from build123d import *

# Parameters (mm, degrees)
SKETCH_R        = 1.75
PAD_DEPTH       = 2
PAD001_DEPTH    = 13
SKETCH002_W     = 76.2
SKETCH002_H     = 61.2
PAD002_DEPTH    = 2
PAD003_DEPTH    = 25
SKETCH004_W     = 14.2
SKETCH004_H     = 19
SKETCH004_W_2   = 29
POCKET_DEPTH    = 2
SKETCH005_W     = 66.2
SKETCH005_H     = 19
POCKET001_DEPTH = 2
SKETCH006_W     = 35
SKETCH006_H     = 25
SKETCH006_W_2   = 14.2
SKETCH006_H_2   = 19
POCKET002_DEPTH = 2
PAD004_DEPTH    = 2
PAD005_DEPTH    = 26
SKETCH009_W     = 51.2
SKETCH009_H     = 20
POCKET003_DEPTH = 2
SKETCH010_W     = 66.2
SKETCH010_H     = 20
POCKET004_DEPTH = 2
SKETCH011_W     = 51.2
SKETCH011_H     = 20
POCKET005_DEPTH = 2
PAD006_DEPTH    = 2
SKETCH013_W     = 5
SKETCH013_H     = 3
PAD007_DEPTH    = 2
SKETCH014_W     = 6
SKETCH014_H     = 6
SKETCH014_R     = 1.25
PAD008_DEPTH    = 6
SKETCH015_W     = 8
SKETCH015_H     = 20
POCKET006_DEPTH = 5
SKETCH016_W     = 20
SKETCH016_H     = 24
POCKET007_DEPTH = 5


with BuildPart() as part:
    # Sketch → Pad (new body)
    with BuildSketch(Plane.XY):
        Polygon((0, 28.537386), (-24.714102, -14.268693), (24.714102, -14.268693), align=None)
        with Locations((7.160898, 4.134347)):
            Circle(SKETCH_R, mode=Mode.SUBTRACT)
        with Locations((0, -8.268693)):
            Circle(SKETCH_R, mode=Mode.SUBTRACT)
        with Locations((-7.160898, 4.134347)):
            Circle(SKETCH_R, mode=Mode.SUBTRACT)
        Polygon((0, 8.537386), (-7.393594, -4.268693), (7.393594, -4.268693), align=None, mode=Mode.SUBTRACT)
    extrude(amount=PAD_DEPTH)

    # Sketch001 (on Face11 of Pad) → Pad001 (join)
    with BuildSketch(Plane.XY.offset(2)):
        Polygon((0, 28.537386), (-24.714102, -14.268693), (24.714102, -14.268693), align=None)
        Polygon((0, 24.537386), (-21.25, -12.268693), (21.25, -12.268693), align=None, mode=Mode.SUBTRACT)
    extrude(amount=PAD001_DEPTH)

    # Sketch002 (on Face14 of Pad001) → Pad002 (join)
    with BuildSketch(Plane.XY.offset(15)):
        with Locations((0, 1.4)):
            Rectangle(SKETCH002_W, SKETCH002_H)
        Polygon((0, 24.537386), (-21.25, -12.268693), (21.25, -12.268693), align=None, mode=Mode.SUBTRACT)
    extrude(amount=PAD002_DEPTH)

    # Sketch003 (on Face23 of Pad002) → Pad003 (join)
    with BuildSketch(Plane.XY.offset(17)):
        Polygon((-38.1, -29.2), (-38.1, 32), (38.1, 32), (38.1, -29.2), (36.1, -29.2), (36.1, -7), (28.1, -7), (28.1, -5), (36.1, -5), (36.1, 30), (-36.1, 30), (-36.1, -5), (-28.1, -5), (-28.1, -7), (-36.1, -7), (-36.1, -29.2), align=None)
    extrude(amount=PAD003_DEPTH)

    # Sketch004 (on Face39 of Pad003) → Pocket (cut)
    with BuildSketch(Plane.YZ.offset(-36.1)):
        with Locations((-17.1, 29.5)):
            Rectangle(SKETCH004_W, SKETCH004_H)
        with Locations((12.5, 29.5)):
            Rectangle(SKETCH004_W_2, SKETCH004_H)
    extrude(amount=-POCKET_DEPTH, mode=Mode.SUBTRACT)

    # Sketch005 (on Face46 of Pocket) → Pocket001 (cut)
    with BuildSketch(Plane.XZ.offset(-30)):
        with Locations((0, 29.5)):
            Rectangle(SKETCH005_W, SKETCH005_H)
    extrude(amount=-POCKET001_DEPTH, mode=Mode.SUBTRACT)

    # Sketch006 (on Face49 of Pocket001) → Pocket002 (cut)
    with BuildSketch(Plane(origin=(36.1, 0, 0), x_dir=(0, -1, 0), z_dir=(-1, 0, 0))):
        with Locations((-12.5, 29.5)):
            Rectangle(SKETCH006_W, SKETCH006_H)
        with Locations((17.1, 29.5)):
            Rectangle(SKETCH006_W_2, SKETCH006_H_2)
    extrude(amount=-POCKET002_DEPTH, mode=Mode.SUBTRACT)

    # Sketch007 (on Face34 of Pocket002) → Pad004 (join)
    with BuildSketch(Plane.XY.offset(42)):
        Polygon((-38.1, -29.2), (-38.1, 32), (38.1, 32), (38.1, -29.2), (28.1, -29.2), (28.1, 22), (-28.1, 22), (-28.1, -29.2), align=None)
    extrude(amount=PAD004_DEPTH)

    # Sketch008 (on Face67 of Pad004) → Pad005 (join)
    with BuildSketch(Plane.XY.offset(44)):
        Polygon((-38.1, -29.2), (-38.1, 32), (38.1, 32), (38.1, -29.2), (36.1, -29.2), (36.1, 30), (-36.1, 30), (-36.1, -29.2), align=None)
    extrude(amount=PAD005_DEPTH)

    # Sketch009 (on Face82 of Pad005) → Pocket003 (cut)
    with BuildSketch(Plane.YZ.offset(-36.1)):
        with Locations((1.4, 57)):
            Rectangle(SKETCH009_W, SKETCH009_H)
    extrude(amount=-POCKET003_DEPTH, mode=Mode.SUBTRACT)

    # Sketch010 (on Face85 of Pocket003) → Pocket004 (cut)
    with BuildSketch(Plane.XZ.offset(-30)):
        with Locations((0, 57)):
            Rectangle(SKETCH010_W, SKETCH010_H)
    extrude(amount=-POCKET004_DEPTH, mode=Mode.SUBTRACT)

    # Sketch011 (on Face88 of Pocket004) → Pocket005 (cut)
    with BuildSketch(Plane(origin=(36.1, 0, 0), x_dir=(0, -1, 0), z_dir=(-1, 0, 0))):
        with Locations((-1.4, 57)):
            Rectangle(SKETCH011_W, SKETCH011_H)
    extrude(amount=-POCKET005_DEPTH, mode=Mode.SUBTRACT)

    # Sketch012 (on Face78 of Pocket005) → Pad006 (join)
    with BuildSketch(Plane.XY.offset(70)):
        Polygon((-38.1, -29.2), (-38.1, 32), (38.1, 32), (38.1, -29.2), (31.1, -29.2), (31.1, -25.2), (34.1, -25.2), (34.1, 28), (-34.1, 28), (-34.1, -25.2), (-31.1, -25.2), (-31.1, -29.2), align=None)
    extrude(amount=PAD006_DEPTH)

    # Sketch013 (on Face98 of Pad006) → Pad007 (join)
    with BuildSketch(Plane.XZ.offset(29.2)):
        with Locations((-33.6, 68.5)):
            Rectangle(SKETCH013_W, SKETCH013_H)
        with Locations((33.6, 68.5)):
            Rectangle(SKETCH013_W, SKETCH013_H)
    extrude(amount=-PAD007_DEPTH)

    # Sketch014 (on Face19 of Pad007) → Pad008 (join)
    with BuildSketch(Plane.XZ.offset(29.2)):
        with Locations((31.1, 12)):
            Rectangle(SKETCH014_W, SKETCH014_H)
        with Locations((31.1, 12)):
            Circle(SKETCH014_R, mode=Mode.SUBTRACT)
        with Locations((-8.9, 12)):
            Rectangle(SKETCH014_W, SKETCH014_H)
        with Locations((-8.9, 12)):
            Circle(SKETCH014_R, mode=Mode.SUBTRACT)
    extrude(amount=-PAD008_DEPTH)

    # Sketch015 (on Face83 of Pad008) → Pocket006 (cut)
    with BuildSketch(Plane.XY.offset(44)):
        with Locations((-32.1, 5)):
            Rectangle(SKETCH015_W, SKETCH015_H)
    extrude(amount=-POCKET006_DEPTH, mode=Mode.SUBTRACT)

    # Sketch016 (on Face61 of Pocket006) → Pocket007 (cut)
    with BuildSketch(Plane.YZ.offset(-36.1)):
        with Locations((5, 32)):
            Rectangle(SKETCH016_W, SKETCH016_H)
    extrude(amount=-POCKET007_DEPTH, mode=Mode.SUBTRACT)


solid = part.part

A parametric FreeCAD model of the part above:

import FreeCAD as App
import Part
import Sketcher

V = App.Vector
Q = App.Units.Quantity

doc = App.newDocument("Part")
body = doc.addObject("PartDesign::Body", "Body")

# Sketch on XY plane
sketch1 = body.newObject("Sketcher::SketchObject", "Sketch")
sketch1.AttachmentSupport = (doc.getObject("XY_Plane"), [""])
sketch1.MapMode = "FlatFace"
sketch1.addGeometry([
    Part.LineSegment(V(0, 28.537386, 0), V(-24.714102, -14.268693, 0)),  # 0
    Part.LineSegment(V(-24.714102, -14.268693, 0), V(24.714102, -14.268693, 0)),  # 1
    Part.LineSegment(V(24.714102, -14.268693, 0), V(0, 28.537386, 0)),  # 2
    Part.Circle(V(0, -8.268693, 0), V(0, 0, 1), 1.75),  # 3
    Part.Circle(V(-7.160898, 4.134347, 0), V(0, 0, 1), 1.75),  # 4
    Part.LineSegment(V(-7.393594, -4.268693, 0), V(0, 8.537386, 0)),  # 5
    Part.LineSegment(V(0, 8.537386, 0), V(7.393594, -4.268693, 0)),  # 6
    Part.LineSegment(V(7.393594, -4.268693, 0), V(-7.393594, -4.268693, 0)),  # 7
    Part.Circle(V(7.160898, 4.134347, 0), V(0, 0, 1), 1.75),  # 8
], False)
sketch1.addConstraint([
    Sketcher.Constraint("Coincident", 0, 2, 1, 1),
    Sketcher.Constraint("Coincident", 1, 2, 2, 1),
    Sketcher.Constraint("Coincident", 2, 2, 0, 1),
    Sketcher.Constraint("Coincident", 5, 2, 6, 1),
    Sketcher.Constraint("Coincident", 6, 2, 7, 1),
    Sketcher.Constraint("Coincident", 7, 2, 5, 1),
    Sketcher.Constraint("Horizontal", 1),
    Sketcher.Constraint("Horizontal", 7),
    Sketcher.Constraint("Equal", 3, 4),
    Sketcher.Constraint("Equal", 4, 8),
    Sketcher.Constraint("Symmetric", 4, 3, 8, 3, -2),
    Sketcher.Constraint("PointOnObject", 3, 3, -2),
    Sketcher.Constraint("PointOnObject", 2, 2, -2),
    Sketcher.Constraint("PointOnObject", 5, 2, -2),
    Sketcher.Constraint("Parallel", 0, 5),
    Sketcher.Constraint("Parallel", 2, 6),
    Sketcher.Constraint("Equal", 0, 2),
    Sketcher.Constraint("Diameter", 3, Q("3.5 mm")),
    Sketcher.Constraint("Angle", 0, Q("-120.000001 deg")),
    Sketcher.Constraint("DistanceY", 0, 2, 3, 3, Q("6 mm")),
    Sketcher.Constraint("DistanceY", 5, 2, 2, 2, Q("20 mm")),
    Sketcher.Constraint("DistanceY", 3, 3, 6, 2, Q("4 mm")),
    Sketcher.Constraint("DistanceX", 0, 2, 8, 3, Q("31.875 mm")),
    Sketcher.Constraint("DistanceX", 4, 3, -1, 1, Q("7.160898 mm")),
    Sketcher.Constraint("DistanceY", 3, 3, 4, 3, Q("12.40304 mm")),
    Sketcher.Constraint("DistanceY", 3, 3, -1, 1, Q("8.268693 mm")),
])
pad1 = body.newObject("PartDesign::Pad", "Pad")
pad1.Profile = sketch1
pad1.Length = 2

# Sketch on XY plane
sketch2 = body.newObject("Sketcher::SketchObject", "Sketch001")
sketch2.AttachmentSupport = (doc.getObject("XY_Plane"), [""])
sketch2.MapMode = "FlatFace"
sketch2.AttachmentOffset = App.Placement(V(0, 0, 2), App.Rotation())
sketch2.addGeometry([
    Part.LineSegment(V(0, 28.537386, 0), V(-24.714102, -14.268693, 0)),  # 0
    Part.LineSegment(V(-24.714102, -14.268693, 0), V(24.714102, -14.268693, 0)),  # 1
    Part.LineSegment(V(24.714102, -14.268693, 0), V(0, 28.537386, 0)),  # 2
    Part.LineSegment(V(-21.25, -12.268693, 0), V(0, 24.537386, 0)),  # 3
    Part.LineSegment(V(0, 24.537386, 0), V(21.25, -12.268693, 0)),  # 4
    Part.LineSegment(V(21.25, -12.268693, 0), V(-21.25, -12.268693, 0)),  # 5
], False)
sketch2.addConstraint([
    Sketcher.Constraint("Coincident", 0, 2, 1, 1),
    Sketcher.Constraint("Coincident", 1, 2, 2, 1),
    Sketcher.Constraint("Coincident", 2, 2, 0, 1),
    Sketcher.Constraint("Coincident", 3, 2, 4, 1),
    Sketcher.Constraint("Coincident", 4, 2, 5, 1),
    Sketcher.Constraint("Coincident", 5, 2, 3, 1),
    Sketcher.Constraint("Horizontal", 1),
    Sketcher.Constraint("Horizontal", 5),
    Sketcher.Constraint("PointOnObject", 2, 2, -2),
    Sketcher.Constraint("PointOnObject", 3, 2, -2),
    Sketcher.Constraint("Parallel", 0, 3),
    Sketcher.Constraint("Parallel", 2, 4),
    Sketcher.Constraint("Equal", 0, 2),
    Sketcher.Constraint("Angle", 0, Q("-120.000001 deg")),
    Sketcher.Constraint("DistanceX", 5, 2, 5, 1, Q("42.5 mm")),
    Sketcher.Constraint("DistanceY", 3, 2, 2, 2, Q("4 mm")),
    Sketcher.Constraint("DistanceY", 1, 2, 4, 2, Q("2 mm")),
    Sketcher.Constraint("DistanceY", 0, 2, -1, 1, Q("14.268693 mm")),
])
pad2 = body.newObject("PartDesign::Pad", "Pad001")
pad2.Profile = sketch2
pad2.Length = 13

# Sketch on XY plane
sketch3 = body.newObject("Sketcher::SketchObject", "Sketch002")
sketch3.AttachmentSupport = (doc.getObject("XY_Plane"), [""])
sketch3.MapMode = "FlatFace"
sketch3.AttachmentOffset = App.Placement(V(0, 0, 15), App.Rotation())
sketch3.addGeometry([
    Part.LineSegment(V(-38.1, 32, 0), V(-38.1, -29.2, 0)),  # 0
    Part.LineSegment(V(-38.1, -29.2, 0), V(38.1, -29.2, 0)),  # 1
    Part.LineSegment(V(38.1, -29.2, 0), V(38.1, 32, 0)),  # 2
    Part.LineSegment(V(38.1, 32, 0), V(-38.1, 32, 0)),  # 3
    Part.LineSegment(V(-21.25, -12.268693, 0), V(0, 24.537386, 0)),  # 4
    Part.LineSegment(V(0, 24.537386, 0), V(21.25, -12.268693, 0)),  # 5
    Part.LineSegment(V(21.25, -12.268693, 0), V(-21.25, -12.268693, 0)),  # 6
], False)
sketch3.addConstraint([
    Sketcher.Constraint("Coincident", 0, 2, 1, 1),
    Sketcher.Constraint("Coincident", 1, 2, 2, 1),
    Sketcher.Constraint("Coincident", 2, 2, 3, 1),
    Sketcher.Constraint("Coincident", 3, 2, 0, 1),
    Sketcher.Constraint("Coincident", 4, 2, 5, 1),
    Sketcher.Constraint("Coincident", 5, 2, 6, 1),
    Sketcher.Constraint("Coincident", 6, 2, 4, 1),
    Sketcher.Constraint("Vertical", 0),
    Sketcher.Constraint("Horizontal", 1),
    Sketcher.Constraint("Vertical", 2),
    Sketcher.Constraint("Horizontal", 3),
    Sketcher.Constraint("Horizontal", 6),
    Sketcher.Constraint("PointOnObject", 4, 2, -2),
    Sketcher.Constraint("Equal", 4, 5),
    Sketcher.Constraint("Angle", 4, Q("60 deg")),
    Sketcher.Constraint("DistanceX", 1, 1, 1, 2, Q("76.2 mm")),
    Sketcher.Constraint("DistanceX", 6, 2, 6, 1, Q("42.5 mm")),
    Sketcher.Constraint("DistanceY", 0, 2, 0, 1, Q("61.2 mm")),
    Sketcher.Constraint("DistanceY", -1, 1, 2, 2, Q("32 mm")),
    Sketcher.Constraint("DistanceX", 0, 2, -1, 1, Q("38.1 mm")),
    Sketcher.Constraint("DistanceY", -1, 1, 4, 2, Q("24.537386 mm")),
])
pad3 = body.newObject("PartDesign::Pad", "Pad002")
pad3.Profile = sketch3
pad3.Length = 2

# Sketch on XY plane
sketch4 = body.newObject("Sketcher::SketchObject", "Sketch003")
sketch4.AttachmentSupport = (doc.getObject("XY_Plane"), [""])
sketch4.MapMode = "FlatFace"
sketch4.AttachmentOffset = App.Placement(V(0, 0, 17), App.Rotation())
sketch4.addGeometry([
    Part.LineSegment(V(-38.1, 32, 0), V(-38.1, -29.2, 0)),  # 0
    Part.LineSegment(V(-38.1, -29.2, 0), V(-36.1, -29.2, 0)),  # 1
    Part.LineSegment(V(-36.1, -29.2, 0), V(-36.1, -7, 0)),  # 2
    Part.LineSegment(V(-36.1, -7, 0), V(-28.1, -7, 0)),  # 3
    Part.LineSegment(V(-28.1, -7, 0), V(-28.1, -5, 0)),  # 4
    Part.LineSegment(V(-28.1, -5, 0), V(-36.1, -5, 0)),  # 5
    Part.LineSegment(V(-36.1, -5, 0), V(-36.1, 30, 0)),  # 6
    Part.LineSegment(V(-36.1, 30, 0), V(36.1, 30, 0)),  # 7
    Part.LineSegment(V(36.1, 30, 0), V(36.1, -5, 0)),  # 8
    Part.LineSegment(V(36.1, -5, 0), V(28.1, -5, 0)),  # 9
    Part.LineSegment(V(28.1, -5, 0), V(28.1, -7, 0)),  # 10
    Part.LineSegment(V(28.1, -7, 0), V(36.1, -7, 0)),  # 11
    Part.LineSegment(V(36.1, -7, 0), V(36.1, -29.2, 0)),  # 12
    Part.LineSegment(V(36.1, -29.2, 0), V(38.1, -29.2, 0)),  # 13
    Part.LineSegment(V(38.1, -29.2, 0), V(38.1, 32, 0)),  # 14
    Part.LineSegment(V(38.1, 32, 0), V(-38.1, 32, 0)),  # 15
], False)
sketch4.addConstraint([
    Sketcher.Constraint("Coincident", 0, 2, 1, 1),
    Sketcher.Constraint("Coincident", 1, 2, 2, 1),
    Sketcher.Constraint("Coincident", 2, 2, 3, 1),
    Sketcher.Constraint("Coincident", 3, 2, 4, 1),
    Sketcher.Constraint("Coincident", 4, 2, 5, 1),
    Sketcher.Constraint("Coincident", 5, 2, 6, 1),
    Sketcher.Constraint("Coincident", 6, 2, 7, 1),
    Sketcher.Constraint("Coincident", 7, 2, 8, 1),
    Sketcher.Constraint("Coincident", 8, 2, 9, 1),
    Sketcher.Constraint("Coincident", 9, 2, 10, 1),
    Sketcher.Constraint("Coincident", 10, 2, 11, 1),
    Sketcher.Constraint("Coincident", 11, 2, 12, 1),
    Sketcher.Constraint("Coincident", 12, 2, 13, 1),
    Sketcher.Constraint("Coincident", 13, 2, 14, 1),
    Sketcher.Constraint("Coincident", 14, 2, 15, 1),
    Sketcher.Constraint("Coincident", 15, 2, 0, 1),
    Sketcher.Constraint("Vertical", 0),
    Sketcher.Constraint("Horizontal", 1),
    Sketcher.Constraint("Vertical", 2),
    Sketcher.Constraint("Horizontal", 3),
    Sketcher.Constraint("Vertical", 4),
    Sketcher.Constraint("Horizontal", 5),
    Sketcher.Constraint("Vertical", 6),
    Sketcher.Constraint("Horizontal", 7),
    Sketcher.Constraint("Vertical", 8),
    Sketcher.Constraint("Horizontal", 9),
    Sketcher.Constraint("Vertical", 10),
    Sketcher.Constraint("Horizontal", 11),
    Sketcher.Constraint("Vertical", 12),
    Sketcher.Constraint("Horizontal", 13),
    Sketcher.Constraint("Vertical", 14),
    Sketcher.Constraint("Horizontal", 15),
    Sketcher.Constraint("Symmetric", 5, 2, 8, 2, -2),
    Sketcher.Constraint("Symmetric", 3, 2, 10, 2, -2),
    Sketcher.Constraint("Symmetric", 1, 2, 12, 2, -2),
    Sketcher.Constraint("Vertical", 2, 2, 5, 2),
    Sketcher.Constraint("Equal", 1, 13),
    Sketcher.Constraint("Equal", 13, 4),
    Sketcher.Constraint("DistanceX", 1, 1, 1, 2, Q("2 mm")),
    Sketcher.Constraint("DistanceX", 3, 1, 3, 2, Q("8 mm")),
    Sketcher.Constraint("DistanceY", 6, 1, 6, 2, Q("35 mm")),
    Sketcher.Constraint("DistanceX", 7, 1, 7, 2, Q("72.2 mm")),
    Sketcher.Constraint("DistanceY", 0, 2, 0, 1, Q("61.2 mm")),
    Sketcher.Constraint("DistanceY", 2, 1, 2, 2, Q("22.2 mm")),
    Sketcher.Constraint("DistanceY", 2, 2, -1, 1, Q("7 mm")),
])
pad4 = body.newObject("PartDesign::Pad", "Pad003")
pad4.Profile = sketch4
pad4.Length = 25

# Sketch on YZ plane
sketch5 = body.newObject("Sketcher::SketchObject", "Sketch004")
sketch5.AttachmentSupport = (doc.getObject("YZ_Plane"), [""])
sketch5.MapMode = "FlatFace"
sketch5.AttachmentOffset = App.Placement(V(0, 0, -36.1), App.Rotation())
sketch5.addGeometry([
    Part.LineSegment(V(-24.2, 39, 0), V(-24.2, 20, 0)),  # 0
    Part.LineSegment(V(-24.2, 20, 0), V(-10, 20, 0)),  # 1
    Part.LineSegment(V(-10, 20, 0), V(-10, 39, 0)),  # 2
    Part.LineSegment(V(-10, 39, 0), V(-24.2, 39, 0)),  # 3
    Part.LineSegment(V(-2, 39, 0), V(-2, 20, 0)),  # 4
    Part.LineSegment(V(-2, 20, 0), V(27, 20, 0)),  # 5
    Part.LineSegment(V(27, 20, 0), V(27, 39, 0)),  # 6
    Part.LineSegment(V(27, 39, 0), V(-2, 39, 0)),  # 7
], False)
sketch5.addConstraint([
    Sketcher.Constraint("Coincident", 0, 2, 1, 1),
    Sketcher.Constraint("Coincident", 1, 2, 2, 1),
    Sketcher.Constraint("Coincident", 2, 2, 3, 1),
    Sketcher.Constraint("Coincident", 3, 2, 0, 1),
    Sketcher.Constraint("Coincident", 4, 2, 5, 1),
    Sketcher.Constraint("Coincident", 5, 2, 6, 1),
    Sketcher.Constraint("Coincident", 6, 2, 7, 1),
    Sketcher.Constraint("Coincident", 7, 2, 4, 1),
    Sketcher.Constraint("Vertical", 0),
    Sketcher.Constraint("Horizontal", 1),
    Sketcher.Constraint("Vertical", 2),
    Sketcher.Constraint("Horizontal", 3),
    Sketcher.Constraint("Vertical", 4),
    Sketcher.Constraint("Horizontal", 5),
    Sketcher.Constraint("Vertical", 6),
    Sketcher.Constraint("Horizontal", 7),
    Sketcher.Constraint("Horizontal", 1, 2, 4, 2),
    Sketcher.Constraint("Horizontal", 3, 2, 6, 2),
    Sketcher.Constraint("DistanceX", 5, 1, 5, 2, Q("29 mm")),
    Sketcher.Constraint("DistanceY", 0, 2, 0, 1, Q("19 mm")),
    Sketcher.Constraint("DistanceX", 1, 1, 1, 2, Q("14.2 mm")),
    Sketcher.Constraint("DistanceY", -1, 1, 0, 2, Q("20 mm")),
    Sketcher.Constraint("DistanceX", 1, 2, -1, 1, Q("10 mm")),
    Sketcher.Constraint("DistanceX", 4, 2, -1, 1, Q("2 mm")),
])
pocket1 = body.newObject("PartDesign::Pocket", "Pocket")
pocket1.Profile = sketch5
pocket1.Length = 2

# Sketch on XZ plane
sketch6 = body.newObject("Sketcher::SketchObject", "Sketch005")
sketch6.AttachmentSupport = (doc.getObject("XZ_Plane"), [""])
sketch6.MapMode = "FlatFace"
sketch6.AttachmentOffset = App.Placement(V(0, 0, -30), App.Rotation())
sketch6.addGeometry([
    Part.LineSegment(V(-33.1, 39, 0), V(-33.1, 20, 0)),
    Part.LineSegment(V(-33.1, 20, 0), V(33.1, 20, 0)),
    Part.LineSegment(V(33.1, 20, 0), V(33.1, 39, 0)),
    Part.LineSegment(V(33.1, 39, 0), V(-33.1, 39, 0)),
], False)
sketch6.addConstraint([
    Sketcher.Constraint("Coincident", 0, 2, 1, 1),
    Sketcher.Constraint("Coincident", 1, 2, 2, 1),
    Sketcher.Constraint("Coincident", 2, 2, 3, 1),
    Sketcher.Constraint("Coincident", 3, 2, 0, 1),
    Sketcher.Constraint("Vertical", 0),
    Sketcher.Constraint("Horizontal", 1),
    Sketcher.Constraint("Vertical", 2),
    Sketcher.Constraint("Horizontal", 3),
    Sketcher.Constraint("DistanceY", 0, 2, 0, 1, Q("19 mm")),
    Sketcher.Constraint("DistanceX", 1, 1, 1, 2, Q("66.2 mm")),
    Sketcher.Constraint("DistanceY", -1, 1, 0, 2, Q("20 mm")),
    Sketcher.Constraint("DistanceX", 0, 2, -1, 1, Q("33.1 mm")),
])
pocket2 = body.newObject("PartDesign::Pocket", "Pocket001")
pocket2.Profile = sketch6
pocket2.Length = 2

# Sketch on YZ plane
sketch7 = body.newObject("Sketcher::SketchObject", "Sketch006")
sketch7.AttachmentSupport = (doc.getObject("YZ_Plane"), [""])
sketch7.MapMode = "FlatFace"
sketch7.AttachmentOffset = App.Placement(V(0, 0, 36.1), App.Rotation())
sketch7.addGeometry([
    Part.LineSegment(V(30, 42, 0), V(30, 17, 0)),  # 0
    Part.LineSegment(V(30, 17, 0), V(-5, 17, 0)),  # 1
    Part.LineSegment(V(-5, 17, 0), V(-5, 42, 0)),  # 2
    Part.LineSegment(V(-5, 42, 0), V(30, 42, 0)),  # 3
    Part.LineSegment(V(-10, 39, 0), V(-10, 20, 0)),  # 4
    Part.LineSegment(V(-10, 20, 0), V(-24.2, 20, 0)),  # 5
    Part.LineSegment(V(-24.2, 20, 0), V(-24.2, 39, 0)),  # 6
    Part.LineSegment(V(-24.2, 39, 0), V(-10, 39, 0)),  # 7
], False)
sketch7.addConstraint([
    Sketcher.Constraint("Coincident", 0, 2, 1, 1),
    Sketcher.Constraint("Coincident", 1, 2, 2, 1),
    Sketcher.Constraint("Coincident", 2, 2, 3, 1),
    Sketcher.Constraint("Coincident", 3, 2, 0, 1),
    Sketcher.Constraint("Coincident", 4, 2, 5, 1),
    Sketcher.Constraint("Coincident", 5, 2, 6, 1),
    Sketcher.Constraint("Coincident", 6, 2, 7, 1),
    Sketcher.Constraint("Coincident", 7, 2, 4, 1),
    Sketcher.Constraint("Vertical", 0),
    Sketcher.Constraint("Horizontal", 1),
    Sketcher.Constraint("Vertical", 2),
    Sketcher.Constraint("Horizontal", 3),
    Sketcher.Constraint("Vertical", 4),
    Sketcher.Constraint("Horizontal", 5),
    Sketcher.Constraint("Vertical", 6),
    Sketcher.Constraint("Horizontal", 7),
    Sketcher.Constraint("DistanceX", 1, 2, 1, 1, Q("35 mm")),
    Sketcher.Constraint("DistanceY", 0, 2, 0, 1, Q("25 mm")),
    Sketcher.Constraint("DistanceY", 4, 2, 4, 1, Q("19 mm")),
    Sketcher.Constraint("DistanceX", 5, 2, 5, 1, Q("14.2 mm")),
    Sketcher.Constraint("DistanceX", -1, 1, 0, 2, Q("30 mm")),
    Sketcher.Constraint("DistanceY", -1, 1, 0, 2, Q("17 mm")),
    Sketcher.Constraint("DistanceX", 4, 2, -1, 1, Q("10 mm")),
    Sketcher.Constraint("DistanceY", -1, 1, 4, 2, Q("20 mm")),
])
pocket3 = body.newObject("PartDesign::Pocket", "Pocket002")
pocket3.Profile = sketch7
pocket3.Length = 2
pocket3.Reversed = True

# Sketch on XY plane
sketch8 = body.newObject("Sketcher::SketchObject", "Sketch007")
sketch8.AttachmentSupport = (doc.getObject("XY_Plane"), [""])
sketch8.MapMode = "FlatFace"
sketch8.AttachmentOffset = App.Placement(V(0, 0, 42), App.Rotation())
sketch8.addGeometry([
    Part.LineSegment(V(-38.1, 32, 0), V(-38.1, -29.2, 0)),  # 0
    Part.LineSegment(V(-38.1, -29.2, 0), V(-28.1, -29.2, 0)),  # 1
    Part.LineSegment(V(-28.1, -29.2, 0), V(-28.1, 22, 0)),  # 2
    Part.LineSegment(V(-28.1, 22, 0), V(28.1, 22, 0)),  # 3
    Part.LineSegment(V(28.1, 22, 0), V(28.1, -29.2, 0)),  # 4
    Part.LineSegment(V(28.1, -29.2, 0), V(38.1, -29.2, 0)),  # 5
    Part.LineSegment(V(38.1, -29.2, 0), V(38.1, 32, 0)),  # 6
    Part.LineSegment(V(38.1, 32, 0), V(-38.1, 32, 0)),  # 7
], False)
sketch8.addConstraint([
    Sketcher.Constraint("Coincident", 0, 2, 1, 1),
    Sketcher.Constraint("Coincident", 1, 2, 2, 1),
    Sketcher.Constraint("Coincident", 2, 2, 3, 1),
    Sketcher.Constraint("Coincident", 3, 2, 4, 1),
    Sketcher.Constraint("Coincident", 4, 2, 5, 1),
    Sketcher.Constraint("Coincident", 5, 2, 6, 1),
    Sketcher.Constraint("Coincident", 6, 2, 7, 1),
    Sketcher.Constraint("Coincident", 7, 2, 0, 1),
    Sketcher.Constraint("Vertical", 0),
    Sketcher.Constraint("Horizontal", 1),
    Sketcher.Constraint("Vertical", 2),
    Sketcher.Constraint("Horizontal", 3),
    Sketcher.Constraint("Vertical", 4),
    Sketcher.Constraint("Horizontal", 5),
    Sketcher.Constraint("Vertical", 6),
    Sketcher.Constraint("Horizontal", 7),
    Sketcher.Constraint("Symmetric", 1, 2, 4, 2, -2),
    Sketcher.Constraint("Equal", 1, 5),
    Sketcher.Constraint("DistanceX", 1, 1, 1, 2, Q("10 mm")),
    Sketcher.Constraint("DistanceX", 3, 1, 3, 2, Q("56.2 mm")),
    Sketcher.Constraint("DistanceY", 0, 2, 0, 1, Q("61.2 mm")),
    Sketcher.Constraint("DistanceY", 2, 1, 2, 2, Q("51.2 mm")),
    Sketcher.Constraint("DistanceY", -1, 1, 2, 2, Q("22 mm")),
])
pad5 = body.newObject("PartDesign::Pad", "Pad004")
pad5.Profile = sketch8
pad5.Length = 2

# Sketch on XY plane
sketch9 = body.newObject("Sketcher::SketchObject", "Sketch008")
sketch9.AttachmentSupport = (doc.getObject("XY_Plane"), [""])
sketch9.MapMode = "FlatFace"
sketch9.AttachmentOffset = App.Placement(V(0, 0, 44), App.Rotation())
sketch9.addGeometry([
    Part.LineSegment(V(-38.1, 32, 0), V(-38.1, -29.2, 0)),  # 0
    Part.LineSegment(V(-38.1, -29.2, 0), V(-36.1, -29.2, 0)),  # 1
    Part.LineSegment(V(-36.1, -29.2, 0), V(-36.1, 30, 0)),  # 2
    Part.LineSegment(V(-36.1, 30, 0), V(36.1, 30, 0)),  # 3
    Part.LineSegment(V(36.1, 30, 0), V(36.1, -29.2, 0)),  # 4
    Part.LineSegment(V(36.1, -29.2, 0), V(38.1, -29.2, 0)),  # 5
    Part.LineSegment(V(38.1, -29.2, 0), V(38.1, 32, 0)),  # 6
    Part.LineSegment(V(38.1, 32, 0), V(-38.1, 32, 0)),  # 7
], False)
sketch9.addConstraint([
    Sketcher.Constraint("Coincident", 0, 2, 1, 1),
    Sketcher.Constraint("Coincident", 1, 2, 2, 1),
    Sketcher.Constraint("Coincident", 2, 2, 3, 1),
    Sketcher.Constraint("Coincident", 3, 2, 4, 1),
    Sketcher.Constraint("Coincident", 4, 2, 5, 1),
    Sketcher.Constraint("Coincident", 5, 2, 6, 1),
    Sketcher.Constraint("Coincident", 6, 2, 7, 1),
    Sketcher.Constraint("Coincident", 7, 2, 0, 1),
    Sketcher.Constraint("Vertical", 0),
    Sketcher.Constraint("Horizontal", 1),
    Sketcher.Constraint("Vertical", 2),
    Sketcher.Constraint("Horizontal", 3),
    Sketcher.Constraint("Vertical", 4),
    Sketcher.Constraint("Horizontal", 5),
    Sketcher.Constraint("Vertical", 6),
    Sketcher.Constraint("Horizontal", 7),
    Sketcher.Constraint("Symmetric", 1, 2, 4, 2, -2),
    Sketcher.Constraint("Equal", 1, 5),
    Sketcher.Constraint("DistanceX", 1, 1, 1, 2, Q("2 mm")),
    Sketcher.Constraint("DistanceX", 3, 1, 3, 2, Q("72.2 mm")),
    Sketcher.Constraint("DistanceY", 0, 2, 0, 1, Q("61.2 mm")),
    Sketcher.Constraint("DistanceY", 2, 1, 2, 2, Q("59.2 mm")),
    Sketcher.Constraint("DistanceY", -1, 1, 2, 2, Q("30 mm")),
])
pad6 = body.newObject("PartDesign::Pad", "Pad005")
pad6.Profile = sketch9
pad6.Length = 26

# Sketch on YZ plane
sketch10 = body.newObject("Sketcher::SketchObject", "Sketch009")
sketch10.AttachmentSupport = (doc.getObject("YZ_Plane"), [""])
sketch10.MapMode = "FlatFace"
sketch10.AttachmentOffset = App.Placement(V(0, 0, -36.1), App.Rotation())
sketch10.addGeometry([
    Part.LineSegment(V(-24.2, 67, 0), V(-24.2, 47, 0)),
    Part.LineSegment(V(-24.2, 47, 0), V(27, 47, 0)),
    Part.LineSegment(V(27, 47, 0), V(27, 67, 0)),
    Part.LineSegment(V(27, 67, 0), V(-24.2, 67, 0)),
], False)
sketch10.addConstraint([
    Sketcher.Constraint("Coincident", 0, 2, 1, 1),
    Sketcher.Constraint("Coincident", 1, 2, 2, 1),
    Sketcher.Constraint("Coincident", 2, 2, 3, 1),
    Sketcher.Constraint("Coincident", 3, 2, 0, 1),
    Sketcher.Constraint("Vertical", 0),
    Sketcher.Constraint("Horizontal", 1),
    Sketcher.Constraint("Vertical", 2),
    Sketcher.Constraint("Horizontal", 3),
    Sketcher.Constraint("DistanceY", 0, 2, 0, 1, Q("20 mm")),
    Sketcher.Constraint("DistanceX", 1, 1, 1, 2, Q("51.2 mm")),
    Sketcher.Constraint("DistanceY", -1, 1, 0, 2, Q("47 mm")),
    Sketcher.Constraint("DistanceX", -1, 1, 1, 2, Q("27 mm")),
])
pocket4 = body.newObject("PartDesign::Pocket", "Pocket003")
pocket4.Profile = sketch10
pocket4.Length = 2

# Sketch on XZ plane
sketch11 = body.newObject("Sketcher::SketchObject", "Sketch010")
sketch11.AttachmentSupport = (doc.getObject("XZ_Plane"), [""])
sketch11.MapMode = "FlatFace"
sketch11.AttachmentOffset = App.Placement(V(0, 0, -30), App.Rotation())
sketch11.addGeometry([
    Part.LineSegment(V(-33.1, 67, 0), V(-33.1, 47, 0)),
    Part.LineSegment(V(-33.1, 47, 0), V(33.1, 47, 0)),
    Part.LineSegment(V(33.1, 47, 0), V(33.1, 67, 0)),
    Part.LineSegment(V(33.1, 67, 0), V(-33.1, 67, 0)),
], False)
sketch11.addConstraint([
    Sketcher.Constraint("Coincident", 0, 2, 1, 1),
    Sketcher.Constraint("Coincident", 1, 2, 2, 1),
    Sketcher.Constraint("Coincident", 2, 2, 3, 1),
    Sketcher.Constraint("Coincident", 3, 2, 0, 1),
    Sketcher.Constraint("Vertical", 0),
    Sketcher.Constraint("Horizontal", 1),
    Sketcher.Constraint("Vertical", 2),
    Sketcher.Constraint("Horizontal", 3),
    Sketcher.Constraint("DistanceY", 0, 2, 0, 1, Q("20 mm")),
    Sketcher.Constraint("DistanceX", 1, 1, 1, 2, Q("66.2 mm")),
    Sketcher.Constraint("DistanceY", -1, 1, 0, 2, Q("47 mm")),
    Sketcher.Constraint("DistanceX", 0, 2, -1, 1, Q("33.1 mm")),
])
pocket5 = body.newObject("PartDesign::Pocket", "Pocket004")
pocket5.Profile = sketch11
pocket5.Length = 2

# Sketch on YZ plane
sketch12 = body.newObject("Sketcher::SketchObject", "Sketch011")
sketch12.AttachmentSupport = (doc.getObject("YZ_Plane"), [""])
sketch12.MapMode = "FlatFace"
sketch12.AttachmentOffset = App.Placement(V(0, 0, 36.1), App.Rotation())
sketch12.addGeometry([
    Part.LineSegment(V(27, 67, 0), V(27, 47, 0)),
    Part.LineSegment(V(27, 47, 0), V(-24.2, 47, 0)),
    Part.LineSegment(V(-24.2, 47, 0), V(-24.2, 67, 0)),
    Part.LineSegment(V(-24.2, 67, 0), V(27, 67, 0)),
], False)
sketch12.addConstraint([
    Sketcher.Constraint("Coincident", 0, 2, 1, 1),
    Sketcher.Constraint("Coincident", 1, 2, 2, 1),
    Sketcher.Constraint("Coincident", 2, 2, 3, 1),
    Sketcher.Constraint("Coincident", 3, 2, 0, 1),
    Sketcher.Constraint("Vertical", 0),
    Sketcher.Constraint("Horizontal", 1),
    Sketcher.Constraint("Vertical", 2),
    Sketcher.Constraint("Horizontal", 3),
    Sketcher.Constraint("DistanceY", 0, 2, 0, 1, Q("20 mm")),
    Sketcher.Constraint("DistanceX", 1, 2, 1, 1, Q("51.2 mm")),
    Sketcher.Constraint("DistanceX", -1, 1, 0, 2, Q("27 mm")),
    Sketcher.Constraint("DistanceY", -1, 1, 0, 2, Q("47 mm")),
])
pocket6 = body.newObject("PartDesign::Pocket", "Pocket005")
pocket6.Profile = sketch12
pocket6.Length = 2
pocket6.Reversed = True

# Sketch on XY plane
sketch13 = body.newObject("Sketcher::SketchObject", "Sketch012")
sketch13.AttachmentSupport = (doc.getObject("XY_Plane"), [""])
sketch13.MapMode = "FlatFace"
sketch13.AttachmentOffset = App.Placement(V(0, 0, 70), App.Rotation())
sketch13.addGeometry([
    Part.LineSegment(V(-38.1, 32, 0), V(-38.1, -29.2, 0)),  # 0
    Part.LineSegment(V(-38.1, -29.2, 0), V(-31.1, -29.2, 0)),  # 1
    Part.LineSegment(V(-31.1, -29.2, 0), V(-31.1, -25.2, 0)),  # 2
    Part.LineSegment(V(-31.1, -25.2, 0), V(-34.1, -25.2, 0)),  # 3
    Part.LineSegment(V(-34.1, -25.2, 0), V(-34.1, 28, 0)),  # 4
    Part.LineSegment(V(-34.1, 28, 0), V(34.1, 28, 0)),  # 5
    Part.LineSegment(V(34.1, 28, 0), V(34.1, -25.2, 0)),  # 6
    Part.LineSegment(V(34.1, -25.2, 0), V(31.1, -25.2, 0)),  # 7
    Part.LineSegment(V(31.1, -25.2, 0), V(31.1, -29.2, 0)),  # 8
    Part.LineSegment(V(31.1, -29.2, 0), V(38.1, -29.2, 0)),  # 9
    Part.LineSegment(V(38.1, -29.2, 0), V(38.1, 32, 0)),  # 10
    Part.LineSegment(V(38.1, 32, 0), V(-38.1, 32, 0)),  # 11
], False)
sketch13.addConstraint([
    Sketcher.Constraint("Coincident", 0, 2, 1, 1),
    Sketcher.Constraint("Coincident", 1, 2, 2, 1),
    Sketcher.Constraint("Coincident", 2, 2, 3, 1),
    Sketcher.Constraint("Coincident", 3, 2, 4, 1),
    Sketcher.Constraint("Coincident", 4, 2, 5, 1),
    Sketcher.Constraint("Coincident", 5, 2, 6, 1),
    Sketcher.Constraint("Coincident", 6, 2, 7, 1),
    Sketcher.Constraint("Coincident", 7, 2, 8, 1),
    Sketcher.Constraint("Coincident", 8, 2, 9, 1),
    Sketcher.Constraint("Coincident", 9, 2, 10, 1),
    Sketcher.Constraint("Coincident", 10, 2, 11, 1),
    Sketcher.Constraint("Coincident", 11, 2, 0, 1),
    Sketcher.Constraint("Vertical", 0),
    Sketcher.Constraint("Horizontal", 1),
    Sketcher.Constraint("Vertical", 2),
    Sketcher.Constraint("Horizontal", 3),
    Sketcher.Constraint("Vertical", 4),
    Sketcher.Constraint("Horizontal", 5),
    Sketcher.Constraint("Vertical", 6),
    Sketcher.Constraint("Horizontal", 7),
    Sketcher.Constraint("Vertical", 8),
    Sketcher.Constraint("Horizontal", 9),
    Sketcher.Constraint("Vertical", 10),
    Sketcher.Constraint("Horizontal", 11),
    Sketcher.Constraint("Symmetric", 3, 2, 6, 2, -2),
    Sketcher.Constraint("Symmetric", 1, 2, 8, 2, -2),
    Sketcher.Constraint("Equal", 1, 9),
    Sketcher.Constraint("DistanceX", 1, 1, 1, 2, Q("7 mm")),
    Sketcher.Constraint("DistanceX", 3, 2, 3, 1, Q("3 mm")),
    Sketcher.Constraint("DistanceY", 2, 1, 2, 2, Q("4 mm")),
    Sketcher.Constraint("DistanceX", 5, 1, 5, 2, Q("68.2 mm")),
    Sketcher.Constraint("DistanceY", 0, 2, 0, 1, Q("61.2 mm")),
    Sketcher.Constraint("DistanceY", 4, 1, 4, 2, Q("53.2 mm")),
    Sketcher.Constraint("DistanceY", -1, 1, 4, 2, Q("28 mm")),
])
pad7 = body.newObject("PartDesign::Pad", "Pad006")
pad7.Profile = sketch13
pad7.Length = 2

# Sketch on XZ plane
sketch14 = body.newObject("Sketcher::SketchObject", "Sketch013")
sketch14.AttachmentSupport = (doc.getObject("XZ_Plane"), [""])
sketch14.MapMode = "FlatFace"
sketch14.AttachmentOffset = App.Placement(V(0, 0, 29.2), App.Rotation())
sketch14.addGeometry([
    Part.LineSegment(V(-36.1, 70, 0), V(-36.1, 67, 0)),  # 0
    Part.LineSegment(V(-36.1, 67, 0), V(-31.1, 67, 0)),  # 1
    Part.LineSegment(V(-31.1, 67, 0), V(-31.1, 70, 0)),  # 2
    Part.LineSegment(V(-31.1, 70, 0), V(-36.1, 70, 0)),  # 3
    Part.LineSegment(V(31.1, 70, 0), V(31.1, 67, 0)),  # 4
    Part.LineSegment(V(31.1, 67, 0), V(36.1, 67, 0)),  # 5
    Part.LineSegment(V(36.1, 67, 0), V(36.1, 70, 0)),  # 6
    Part.LineSegment(V(36.1, 70, 0), V(31.1, 70, 0)),  # 7
], False)
sketch14.addConstraint([
    Sketcher.Constraint("Coincident", 0, 2, 1, 1),
    Sketcher.Constraint("Coincident", 1, 2, 2, 1),
    Sketcher.Constraint("Coincident", 2, 2, 3, 1),
    Sketcher.Constraint("Coincident", 3, 2, 0, 1),
    Sketcher.Constraint("Coincident", 4, 2, 5, 1),
    Sketcher.Constraint("Coincident", 5, 2, 6, 1),
    Sketcher.Constraint("Coincident", 6, 2, 7, 1),
    Sketcher.Constraint("Coincident", 7, 2, 4, 1),
    Sketcher.Constraint("Vertical", 0),
    Sketcher.Constraint("Horizontal", 1),
    Sketcher.Constraint("Vertical", 2),
    Sketcher.Constraint("Horizontal", 3),
    Sketcher.Constraint("Vertical", 4),
    Sketcher.Constraint("Horizontal", 5),
    Sketcher.Constraint("Vertical", 6),
    Sketcher.Constraint("Horizontal", 7),
    Sketcher.Constraint("Symmetric", 1, 2, 4, 2, -2),
    Sketcher.Constraint("Symmetric", 3, 2, 6, 2, -2),
    Sketcher.Constraint("DistanceX", 1, 1, 1, 2, Q("5 mm")),
    Sketcher.Constraint("DistanceY", 0, 2, 0, 1, Q("3 mm")),
    Sketcher.Constraint("DistanceY", -1, 1, 0, 2, Q("67 mm")),
    Sketcher.Constraint("DistanceX", 0, 2, -1, 1, Q("36.1 mm")),
])
pad8 = body.newObject("PartDesign::Pad", "Pad007")
pad8.Profile = sketch14
pad8.Length = 2
pad8.Reversed = True

# Sketch on XZ plane
sketch15 = body.newObject("Sketcher::SketchObject", "Sketch014")
sketch15.AttachmentSupport = (doc.getObject("XZ_Plane"), [""])
sketch15.MapMode = "FlatFace"
sketch15.AttachmentOffset = App.Placement(V(0, 0, 29.2), App.Rotation())
sketch15.addGeometry([
    Part.LineSegment(V(28.1, 15, 0), V(28.1, 9, 0)),  # 0
    Part.LineSegment(V(28.1, 9, 0), V(34.1, 9, 0)),  # 1
    Part.LineSegment(V(34.1, 9, 0), V(34.1, 15, 0)),  # 2
    Part.LineSegment(V(34.1, 15, 0), V(28.1, 15, 0)),  # 3
    Part.Circle(V(31.1, 12, 0), V(0, 0, 1), 1.25),  # 4
    Part.LineSegment(V(-11.9, 15, 0), V(-11.9, 9, 0)),  # 5
    Part.LineSegment(V(-11.9, 9, 0), V(-5.9, 9, 0)),  # 6
    Part.LineSegment(V(-5.9, 9, 0), V(-5.9, 15, 0)),  # 7
    Part.LineSegment(V(-5.9, 15, 0), V(-11.9, 15, 0)),  # 8
    Part.Circle(V(-8.9, 12, 0), V(0, 0, 1), 1.25),  # 9
], False)
sketch15.addConstraint([
    Sketcher.Constraint("Coincident", 0, 2, 1, 1),
    Sketcher.Constraint("Coincident", 1, 2, 2, 1),
    Sketcher.Constraint("Coincident", 2, 2, 3, 1),
    Sketcher.Constraint("Coincident", 3, 2, 0, 1),
    Sketcher.Constraint("Coincident", 5, 2, 6, 1),
    Sketcher.Constraint("Coincident", 6, 2, 7, 1),
    Sketcher.Constraint("Coincident", 7, 2, 8, 1),
    Sketcher.Constraint("Coincident", 8, 2, 5, 1),
    Sketcher.Constraint("Vertical", 0),
    Sketcher.Constraint("Horizontal", 1),
    Sketcher.Constraint("Vertical", 2),
    Sketcher.Constraint("Horizontal", 3),
    Sketcher.Constraint("Vertical", 5),
    Sketcher.Constraint("Horizontal", 6),
    Sketcher.Constraint("Vertical", 7),
    Sketcher.Constraint("Horizontal", 8),
    Sketcher.Constraint("Equal", 4, 9),
    Sketcher.Constraint("Horizontal", 4, 3, 9, 3),
    Sketcher.Constraint("Horizontal", 1, 2, 5, 2),
    Sketcher.Constraint("Horizontal", 3, 2, 7, 2),
    Sketcher.Constraint("Equal", 3, 6),
    Sketcher.Constraint("Equal", 8, 0),
    Sketcher.Constraint("Diameter", 4, Q("2.5 mm")),
    Sketcher.Constraint("DistanceX", 1, 1, 1, 2, Q("6 mm")),
    Sketcher.Constraint("DistanceY", -1, 1, 4, 3, Q("12 mm")),
    Sketcher.Constraint("DistanceY", -1, 1, 0, 2, Q("9 mm")),
    Sketcher.Constraint("DistanceX", 9, 3, 4, 3, Q("40 mm")),
    Sketcher.Constraint("DistanceX", 0, 2, 4, 3, Q("3 mm")),
    Sketcher.Constraint("DistanceX", 5, 2, 9, 3, Q("3 mm")),
    Sketcher.Constraint("DistanceX", -1, 1, 4, 3, Q("31.1 mm")),
])
pad9 = body.newObject("PartDesign::Pad", "Pad008")
pad9.Profile = sketch15
pad9.Length = 6
pad9.Reversed = True

# Sketch on XY plane
sketch16 = body.newObject("Sketcher::SketchObject", "Sketch015")
sketch16.AttachmentSupport = (doc.getObject("XY_Plane"), [""])
sketch16.MapMode = "FlatFace"
sketch16.AttachmentOffset = App.Placement(V(0, 0, 44), App.Rotation())
sketch16.addGeometry([
    Part.LineSegment(V(-36.1, 15, 0), V(-36.1, -5, 0)),
    Part.LineSegment(V(-36.1, -5, 0), V(-28.1, -5, 0)),
    Part.LineSegment(V(-28.1, -5, 0), V(-28.1, 15, 0)),
    Part.LineSegment(V(-28.1, 15, 0), V(-36.1, 15, 0)),
], False)
sketch16.addConstraint([
    Sketcher.Constraint("Coincident", 0, 2, 1, 1),
    Sketcher.Constraint("Coincident", 1, 2, 2, 1),
    Sketcher.Constraint("Coincident", 2, 2, 3, 1),
    Sketcher.Constraint("Coincident", 3, 2, 0, 1),
    Sketcher.Constraint("Vertical", 0),
    Sketcher.Constraint("Horizontal", 1),
    Sketcher.Constraint("Vertical", 2),
    Sketcher.Constraint("Horizontal", 3),
    Sketcher.Constraint("DistanceX", 1, 1, 1, 2, Q("8 mm")),
    Sketcher.Constraint("DistanceY", 0, 2, 0, 1, Q("20 mm")),
    Sketcher.Constraint("DistanceY", 0, 2, -1, 1, Q("5 mm")),
    Sketcher.Constraint("DistanceX", 0, 2, -1, 1, Q("36.1 mm")),
])
pocket7 = body.newObject("PartDesign::Pocket", "Pocket006")
pocket7.Profile = sketch16
pocket7.Length = 5

# Sketch on YZ plane
sketch17 = body.newObject("Sketcher::SketchObject", "Sketch016")
sketch17.AttachmentSupport = (doc.getObject("YZ_Plane"), [""])
sketch17.MapMode = "FlatFace"
sketch17.AttachmentOffset = App.Placement(V(0, 0, -36.1), App.Rotation())
sketch17.addGeometry([
    Part.LineSegment(V(-5, 44, 0), V(-5, 20, 0)),
    Part.LineSegment(V(-5, 20, 0), V(15, 20, 0)),
    Part.LineSegment(V(15, 20, 0), V(15, 44, 0)),
    Part.LineSegment(V(15, 44, 0), V(-5, 44, 0)),
], False)
sketch17.addConstraint([
    Sketcher.Constraint("Coincident", 0, 2, 1, 1),
    Sketcher.Constraint("Coincident", 1, 2, 2, 1),
    Sketcher.Constraint("Coincident", 2, 2, 3, 1),
    Sketcher.Constraint("Coincident", 3, 2, 0, 1),
    Sketcher.Constraint("Vertical", 0),
    Sketcher.Constraint("Horizontal", 1),
    Sketcher.Constraint("Vertical", 2),
    Sketcher.Constraint("Horizontal", 3),
    Sketcher.Constraint("DistanceX", 1, 1, 1, 2, Q("20 mm")),
    Sketcher.Constraint("DistanceY", 0, 2, 0, 1, Q("24 mm")),
    Sketcher.Constraint("DistanceX", 0, 2, -1, 1, Q("5 mm")),
    Sketcher.Constraint("DistanceY", -1, 1, 0, 2, Q("20 mm")),
])
pocket8 = body.newObject("PartDesign::Pocket", "Pocket007")
pocket8.Profile = sketch17
pocket8.Length = 5

doc.recompute()
